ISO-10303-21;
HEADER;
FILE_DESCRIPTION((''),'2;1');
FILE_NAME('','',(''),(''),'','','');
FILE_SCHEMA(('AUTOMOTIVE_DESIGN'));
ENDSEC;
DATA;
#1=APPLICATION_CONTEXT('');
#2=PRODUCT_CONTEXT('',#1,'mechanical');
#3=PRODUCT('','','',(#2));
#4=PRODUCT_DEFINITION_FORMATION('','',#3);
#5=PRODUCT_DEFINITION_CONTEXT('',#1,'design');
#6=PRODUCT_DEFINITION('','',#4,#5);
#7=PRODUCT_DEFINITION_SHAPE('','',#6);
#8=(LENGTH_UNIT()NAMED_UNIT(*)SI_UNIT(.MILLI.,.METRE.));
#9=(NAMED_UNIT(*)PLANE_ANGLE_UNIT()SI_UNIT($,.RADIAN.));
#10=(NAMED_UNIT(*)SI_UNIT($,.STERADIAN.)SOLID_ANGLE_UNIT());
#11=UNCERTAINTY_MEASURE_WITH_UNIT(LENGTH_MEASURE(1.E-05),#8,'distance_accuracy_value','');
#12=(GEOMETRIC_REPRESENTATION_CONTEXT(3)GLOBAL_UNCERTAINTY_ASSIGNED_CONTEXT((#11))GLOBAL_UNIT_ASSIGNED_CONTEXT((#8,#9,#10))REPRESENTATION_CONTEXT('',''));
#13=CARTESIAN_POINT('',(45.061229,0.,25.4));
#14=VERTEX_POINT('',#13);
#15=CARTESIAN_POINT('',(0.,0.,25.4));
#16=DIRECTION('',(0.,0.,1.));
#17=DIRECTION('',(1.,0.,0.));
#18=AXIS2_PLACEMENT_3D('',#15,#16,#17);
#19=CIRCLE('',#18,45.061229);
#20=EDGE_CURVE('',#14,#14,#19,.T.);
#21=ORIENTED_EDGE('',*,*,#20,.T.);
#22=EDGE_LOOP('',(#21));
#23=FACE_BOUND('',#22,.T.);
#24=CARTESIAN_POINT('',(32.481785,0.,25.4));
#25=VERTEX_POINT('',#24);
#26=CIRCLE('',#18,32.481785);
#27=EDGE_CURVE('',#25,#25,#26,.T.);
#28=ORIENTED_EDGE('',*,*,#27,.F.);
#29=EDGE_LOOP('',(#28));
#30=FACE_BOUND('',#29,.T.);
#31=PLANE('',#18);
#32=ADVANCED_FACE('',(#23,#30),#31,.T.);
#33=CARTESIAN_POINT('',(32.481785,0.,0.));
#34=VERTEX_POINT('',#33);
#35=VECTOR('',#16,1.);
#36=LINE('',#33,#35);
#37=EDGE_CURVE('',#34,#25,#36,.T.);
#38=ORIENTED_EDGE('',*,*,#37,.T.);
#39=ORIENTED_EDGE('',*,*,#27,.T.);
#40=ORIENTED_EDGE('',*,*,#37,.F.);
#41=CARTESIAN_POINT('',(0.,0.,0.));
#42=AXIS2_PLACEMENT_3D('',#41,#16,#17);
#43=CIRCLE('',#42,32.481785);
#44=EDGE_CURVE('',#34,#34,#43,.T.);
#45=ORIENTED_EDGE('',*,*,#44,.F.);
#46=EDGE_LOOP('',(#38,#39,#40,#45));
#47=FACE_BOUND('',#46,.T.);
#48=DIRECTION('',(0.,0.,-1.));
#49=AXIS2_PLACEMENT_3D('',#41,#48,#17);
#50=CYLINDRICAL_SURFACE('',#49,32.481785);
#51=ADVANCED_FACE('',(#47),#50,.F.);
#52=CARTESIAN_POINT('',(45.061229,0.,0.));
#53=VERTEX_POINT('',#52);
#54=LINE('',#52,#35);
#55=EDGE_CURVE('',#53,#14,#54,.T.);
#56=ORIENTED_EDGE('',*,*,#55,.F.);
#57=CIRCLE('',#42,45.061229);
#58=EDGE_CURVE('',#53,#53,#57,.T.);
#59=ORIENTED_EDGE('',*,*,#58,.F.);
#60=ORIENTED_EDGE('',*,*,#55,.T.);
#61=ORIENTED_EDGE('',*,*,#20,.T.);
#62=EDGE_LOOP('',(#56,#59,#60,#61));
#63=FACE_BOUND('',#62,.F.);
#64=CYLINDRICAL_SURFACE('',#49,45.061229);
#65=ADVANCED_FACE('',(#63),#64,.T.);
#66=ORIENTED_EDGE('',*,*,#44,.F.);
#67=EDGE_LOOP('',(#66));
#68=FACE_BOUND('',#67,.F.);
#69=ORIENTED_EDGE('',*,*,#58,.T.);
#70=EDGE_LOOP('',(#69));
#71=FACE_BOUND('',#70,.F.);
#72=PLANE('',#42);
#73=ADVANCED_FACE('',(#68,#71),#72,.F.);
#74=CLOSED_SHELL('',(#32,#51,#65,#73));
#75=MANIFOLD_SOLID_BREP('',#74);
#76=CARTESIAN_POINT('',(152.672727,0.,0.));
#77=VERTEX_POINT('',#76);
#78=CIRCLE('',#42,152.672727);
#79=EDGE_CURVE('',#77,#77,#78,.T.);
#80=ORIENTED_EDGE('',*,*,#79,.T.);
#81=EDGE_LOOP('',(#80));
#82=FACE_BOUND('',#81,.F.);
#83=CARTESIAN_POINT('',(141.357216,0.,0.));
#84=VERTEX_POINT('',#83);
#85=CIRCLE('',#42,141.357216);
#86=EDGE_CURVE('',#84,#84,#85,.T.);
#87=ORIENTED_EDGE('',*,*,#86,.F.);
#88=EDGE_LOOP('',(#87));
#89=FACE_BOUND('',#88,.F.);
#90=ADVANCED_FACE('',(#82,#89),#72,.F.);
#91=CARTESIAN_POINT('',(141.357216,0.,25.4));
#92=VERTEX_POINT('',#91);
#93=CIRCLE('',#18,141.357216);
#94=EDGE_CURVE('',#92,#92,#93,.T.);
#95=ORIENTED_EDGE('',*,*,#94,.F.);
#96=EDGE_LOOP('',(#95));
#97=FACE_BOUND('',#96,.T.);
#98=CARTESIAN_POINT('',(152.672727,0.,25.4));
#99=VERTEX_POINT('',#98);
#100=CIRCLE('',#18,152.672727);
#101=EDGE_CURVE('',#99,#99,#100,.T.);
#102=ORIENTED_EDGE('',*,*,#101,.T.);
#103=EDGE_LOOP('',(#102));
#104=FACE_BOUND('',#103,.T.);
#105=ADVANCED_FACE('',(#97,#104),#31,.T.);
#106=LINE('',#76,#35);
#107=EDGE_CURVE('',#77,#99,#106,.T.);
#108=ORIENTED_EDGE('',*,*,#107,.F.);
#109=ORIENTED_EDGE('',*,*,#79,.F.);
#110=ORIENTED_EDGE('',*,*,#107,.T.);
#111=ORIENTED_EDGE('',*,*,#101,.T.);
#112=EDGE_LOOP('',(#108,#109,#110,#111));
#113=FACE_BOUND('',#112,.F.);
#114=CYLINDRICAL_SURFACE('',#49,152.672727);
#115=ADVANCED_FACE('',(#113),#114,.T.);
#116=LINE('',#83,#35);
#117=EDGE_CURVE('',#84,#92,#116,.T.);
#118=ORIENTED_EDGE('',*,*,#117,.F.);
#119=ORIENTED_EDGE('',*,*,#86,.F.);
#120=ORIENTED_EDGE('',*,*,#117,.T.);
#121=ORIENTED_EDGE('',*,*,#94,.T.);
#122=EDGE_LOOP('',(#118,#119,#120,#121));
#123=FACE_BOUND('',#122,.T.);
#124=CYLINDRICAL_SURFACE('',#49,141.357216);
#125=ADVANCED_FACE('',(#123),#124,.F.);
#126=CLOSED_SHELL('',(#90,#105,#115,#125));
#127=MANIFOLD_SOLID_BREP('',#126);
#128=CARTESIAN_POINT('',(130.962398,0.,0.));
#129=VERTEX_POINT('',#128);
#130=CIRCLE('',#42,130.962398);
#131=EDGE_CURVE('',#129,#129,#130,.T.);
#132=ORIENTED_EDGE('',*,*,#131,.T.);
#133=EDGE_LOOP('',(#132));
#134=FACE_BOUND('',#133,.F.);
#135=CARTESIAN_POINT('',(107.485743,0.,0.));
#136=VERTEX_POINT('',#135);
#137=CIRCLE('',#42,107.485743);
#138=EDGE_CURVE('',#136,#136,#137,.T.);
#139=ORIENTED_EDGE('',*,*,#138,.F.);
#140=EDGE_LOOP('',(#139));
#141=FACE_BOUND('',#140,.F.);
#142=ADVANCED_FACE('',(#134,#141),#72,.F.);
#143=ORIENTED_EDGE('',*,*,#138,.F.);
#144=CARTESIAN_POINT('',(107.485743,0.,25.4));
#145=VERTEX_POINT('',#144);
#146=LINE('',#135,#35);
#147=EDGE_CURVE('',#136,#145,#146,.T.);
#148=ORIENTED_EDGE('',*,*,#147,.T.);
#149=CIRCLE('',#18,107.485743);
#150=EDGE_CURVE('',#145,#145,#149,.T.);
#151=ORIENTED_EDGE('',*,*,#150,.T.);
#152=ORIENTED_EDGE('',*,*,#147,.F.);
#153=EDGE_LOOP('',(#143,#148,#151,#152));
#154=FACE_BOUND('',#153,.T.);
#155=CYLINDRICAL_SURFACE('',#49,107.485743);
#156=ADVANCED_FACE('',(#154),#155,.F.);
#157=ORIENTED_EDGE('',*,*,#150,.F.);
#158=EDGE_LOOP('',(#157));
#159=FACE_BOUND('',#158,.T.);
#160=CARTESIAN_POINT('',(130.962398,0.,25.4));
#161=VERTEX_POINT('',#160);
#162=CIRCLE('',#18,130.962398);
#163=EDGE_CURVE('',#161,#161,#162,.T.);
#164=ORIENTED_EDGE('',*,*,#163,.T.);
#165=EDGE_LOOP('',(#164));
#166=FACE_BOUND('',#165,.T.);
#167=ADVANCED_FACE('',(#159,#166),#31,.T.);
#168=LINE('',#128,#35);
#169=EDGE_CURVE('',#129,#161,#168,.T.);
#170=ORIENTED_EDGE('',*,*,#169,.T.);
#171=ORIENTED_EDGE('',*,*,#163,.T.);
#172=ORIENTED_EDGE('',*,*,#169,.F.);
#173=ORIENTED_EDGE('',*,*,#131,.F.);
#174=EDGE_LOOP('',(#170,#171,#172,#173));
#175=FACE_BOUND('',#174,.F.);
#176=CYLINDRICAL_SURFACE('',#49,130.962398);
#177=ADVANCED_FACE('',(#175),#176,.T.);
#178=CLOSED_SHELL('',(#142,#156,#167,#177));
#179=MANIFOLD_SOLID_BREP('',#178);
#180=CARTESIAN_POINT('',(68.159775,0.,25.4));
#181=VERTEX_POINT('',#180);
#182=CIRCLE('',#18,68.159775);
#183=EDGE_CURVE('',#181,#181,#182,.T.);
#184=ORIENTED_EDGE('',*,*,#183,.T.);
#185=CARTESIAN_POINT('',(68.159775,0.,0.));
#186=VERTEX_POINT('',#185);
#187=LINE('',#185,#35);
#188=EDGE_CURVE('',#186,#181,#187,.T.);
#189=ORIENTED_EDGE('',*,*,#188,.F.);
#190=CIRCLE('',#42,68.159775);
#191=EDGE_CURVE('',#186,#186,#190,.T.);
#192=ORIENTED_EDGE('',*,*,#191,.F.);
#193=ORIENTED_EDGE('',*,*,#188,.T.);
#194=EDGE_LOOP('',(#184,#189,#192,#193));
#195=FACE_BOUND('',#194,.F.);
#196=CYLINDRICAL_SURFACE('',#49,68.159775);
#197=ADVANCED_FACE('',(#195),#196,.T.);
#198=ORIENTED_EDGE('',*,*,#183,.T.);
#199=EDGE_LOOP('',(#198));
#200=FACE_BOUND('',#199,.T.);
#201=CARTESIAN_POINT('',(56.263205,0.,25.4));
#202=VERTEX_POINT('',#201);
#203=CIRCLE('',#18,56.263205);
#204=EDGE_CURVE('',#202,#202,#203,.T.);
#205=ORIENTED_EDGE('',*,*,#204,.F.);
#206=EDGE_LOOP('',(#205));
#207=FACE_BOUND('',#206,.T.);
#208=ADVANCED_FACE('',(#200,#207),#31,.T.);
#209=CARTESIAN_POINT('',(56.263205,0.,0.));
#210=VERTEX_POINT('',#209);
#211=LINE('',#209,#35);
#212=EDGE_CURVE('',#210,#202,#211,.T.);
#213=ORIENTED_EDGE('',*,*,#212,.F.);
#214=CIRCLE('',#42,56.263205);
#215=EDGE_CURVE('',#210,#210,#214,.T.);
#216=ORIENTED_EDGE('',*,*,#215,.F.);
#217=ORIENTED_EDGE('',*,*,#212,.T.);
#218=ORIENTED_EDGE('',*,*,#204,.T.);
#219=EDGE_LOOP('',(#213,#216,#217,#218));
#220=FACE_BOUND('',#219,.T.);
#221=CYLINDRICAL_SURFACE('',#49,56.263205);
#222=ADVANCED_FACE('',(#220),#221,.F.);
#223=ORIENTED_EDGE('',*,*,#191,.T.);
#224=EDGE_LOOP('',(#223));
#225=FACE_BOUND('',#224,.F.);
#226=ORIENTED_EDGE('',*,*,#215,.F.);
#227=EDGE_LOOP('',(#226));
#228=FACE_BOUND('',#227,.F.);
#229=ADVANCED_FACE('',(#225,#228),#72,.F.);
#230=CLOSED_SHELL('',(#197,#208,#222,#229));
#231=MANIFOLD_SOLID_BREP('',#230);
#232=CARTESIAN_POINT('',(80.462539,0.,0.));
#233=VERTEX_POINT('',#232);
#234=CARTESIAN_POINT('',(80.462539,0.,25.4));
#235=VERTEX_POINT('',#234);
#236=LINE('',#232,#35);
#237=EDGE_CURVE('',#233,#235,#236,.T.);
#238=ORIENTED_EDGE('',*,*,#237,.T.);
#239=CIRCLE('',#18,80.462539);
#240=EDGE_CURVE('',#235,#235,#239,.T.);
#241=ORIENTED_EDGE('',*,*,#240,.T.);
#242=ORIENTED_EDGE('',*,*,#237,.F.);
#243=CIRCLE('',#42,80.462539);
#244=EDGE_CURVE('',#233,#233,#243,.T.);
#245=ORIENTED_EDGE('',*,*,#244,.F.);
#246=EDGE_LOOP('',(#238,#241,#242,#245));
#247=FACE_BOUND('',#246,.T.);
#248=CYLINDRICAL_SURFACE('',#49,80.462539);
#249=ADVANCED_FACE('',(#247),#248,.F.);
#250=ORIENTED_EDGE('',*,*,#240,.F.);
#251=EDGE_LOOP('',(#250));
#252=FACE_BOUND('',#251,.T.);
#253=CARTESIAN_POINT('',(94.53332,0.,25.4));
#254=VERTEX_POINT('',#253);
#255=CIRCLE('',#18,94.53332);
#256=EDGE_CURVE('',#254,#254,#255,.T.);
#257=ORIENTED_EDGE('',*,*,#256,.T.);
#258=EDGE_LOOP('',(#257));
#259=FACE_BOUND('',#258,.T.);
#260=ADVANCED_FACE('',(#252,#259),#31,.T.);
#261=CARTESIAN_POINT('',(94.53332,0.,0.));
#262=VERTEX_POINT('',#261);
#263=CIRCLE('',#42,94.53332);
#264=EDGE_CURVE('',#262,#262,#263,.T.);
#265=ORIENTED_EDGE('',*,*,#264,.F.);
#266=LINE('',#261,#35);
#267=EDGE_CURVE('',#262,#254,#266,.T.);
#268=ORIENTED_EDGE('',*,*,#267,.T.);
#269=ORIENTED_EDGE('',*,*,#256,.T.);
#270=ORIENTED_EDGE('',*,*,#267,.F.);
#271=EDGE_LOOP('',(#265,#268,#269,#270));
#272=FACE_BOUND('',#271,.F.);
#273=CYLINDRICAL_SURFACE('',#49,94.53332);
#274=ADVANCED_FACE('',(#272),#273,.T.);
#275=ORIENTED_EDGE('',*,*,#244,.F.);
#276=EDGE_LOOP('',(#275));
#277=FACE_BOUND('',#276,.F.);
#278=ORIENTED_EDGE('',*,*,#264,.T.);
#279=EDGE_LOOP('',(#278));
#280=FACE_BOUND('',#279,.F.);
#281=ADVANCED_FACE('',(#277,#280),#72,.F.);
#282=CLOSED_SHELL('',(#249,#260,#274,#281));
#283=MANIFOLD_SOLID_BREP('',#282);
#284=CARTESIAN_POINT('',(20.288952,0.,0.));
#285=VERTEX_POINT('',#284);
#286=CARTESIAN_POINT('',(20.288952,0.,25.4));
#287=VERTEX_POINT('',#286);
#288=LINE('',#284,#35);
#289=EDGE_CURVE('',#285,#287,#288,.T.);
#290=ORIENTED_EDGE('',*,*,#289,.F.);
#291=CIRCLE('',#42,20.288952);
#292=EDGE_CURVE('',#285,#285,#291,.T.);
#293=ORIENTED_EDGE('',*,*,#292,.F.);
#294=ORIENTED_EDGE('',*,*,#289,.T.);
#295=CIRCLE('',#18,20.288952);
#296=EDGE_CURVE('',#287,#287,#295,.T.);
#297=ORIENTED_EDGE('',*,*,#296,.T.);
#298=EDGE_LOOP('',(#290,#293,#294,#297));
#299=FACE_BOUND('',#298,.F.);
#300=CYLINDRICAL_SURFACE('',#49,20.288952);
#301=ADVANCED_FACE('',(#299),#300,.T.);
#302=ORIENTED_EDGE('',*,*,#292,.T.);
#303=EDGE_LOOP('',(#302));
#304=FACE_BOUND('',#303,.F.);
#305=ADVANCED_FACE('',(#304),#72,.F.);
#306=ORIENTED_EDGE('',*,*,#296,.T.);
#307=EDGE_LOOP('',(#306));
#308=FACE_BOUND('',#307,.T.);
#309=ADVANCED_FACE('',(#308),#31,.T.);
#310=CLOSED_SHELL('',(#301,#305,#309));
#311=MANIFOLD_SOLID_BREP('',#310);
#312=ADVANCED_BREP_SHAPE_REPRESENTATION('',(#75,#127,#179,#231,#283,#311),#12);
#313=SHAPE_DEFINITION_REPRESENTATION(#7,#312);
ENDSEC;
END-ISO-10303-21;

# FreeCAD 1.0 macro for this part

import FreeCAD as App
import Part
import Sketcher
Q = App.Units.Quantity

doc = App.newDocument("Part")
body = doc.addObject("PartDesign::Body", "Body")

sketch1 = body.newObject("Sketcher::SketchObject", "Sketch")
sketch1.AttachmentSupport = (doc.getObject("XY_Plane"), [""])
sketch1.MapMode = "FlatFace"
sketch1.addGeometry(Part.Circle(App.Vector(0, 0, 0), App.Vector(0, 0, 1), 153), False)
sketch1.addGeometry(Part.Circle(App.Vector(0, 0, 0), App.Vector(0, 0, 1), 141), False)
sketch1.addConstraint(Sketcher.Constraint("Coincident", 0, 3, -1, 1))
sketch1.addConstraint(Sketcher.Constraint("Coincident", 1, 3, -1, 1))
sketch1.addConstraint(Sketcher.Constraint("Diameter", 1, Q("282.714432 mm")))
sketch1.addConstraint(Sketcher.Constraint("Diameter", 0, Q("305.345453 mm")))
pad1 = body.newObject("PartDesign::Pad", "Pad")
pad1.Profile = sketch1
pad1.Length = Q("1 in")
body2 = doc.addObject("PartDesign::Body", "Body001")

sketch2 = body2.newObject("Sketcher::SketchObject", "Sketch001")
sketch2.AttachmentSupport = (doc.getObject("XY_Plane001"), [""])
sketch2.MapMode = "FlatFace"
sketch2.addGeometry(Part.Circle(App.Vector(0, 0, 0), App.Vector(0, 0, 1), 20), False)
sketch2.addConstraint(Sketcher.Constraint("Coincident", 0, 3, -1, 1))
sketch2.addConstraint(Sketcher.Constraint("Diameter", 0, Q("40.577905 mm")))
pad2 = body2.newObject("PartDesign::Pad", "Pad001")
pad2.Profile = sketch2
pad2.Length = Q("1 in")
body3 = doc.addObject("PartDesign::Body", "Body002")

sketch3 = body3.newObject("Sketcher::SketchObject", "Sketch002")
sketch3.AttachmentSupport = (doc.getObject("XY_Plane002"), [""])
sketch3.MapMode = "FlatFace"
sketch3.addGeometry(Part.Circle(App.Vector(0, 0, 0), App.Vector(0, 0, 1), 45), False)
sketch3.addGeometry(Part.Circle(App.Vector(0, 0, 0), App.Vector(0, 0, 1), 32), False)
sketch3.addConstraint(Sketcher.Constraint("Coincident", 0, 3, -1, 1))
sketch3.addConstraint(Sketcher.Constraint("Coincident", 1, 3, -1, 1))
sketch3.addConstraint(Sketcher.Constraint("Diameter", 0, Q("90.122458 mm")))
sketch3.addConstraint(Sketcher.Constraint("Diameter", 1, Q("64.963569 mm")))
pad3 = body3.newObject("PartDesign::Pad", "Pad002")
pad3.Profile = sketch3
pad3.Length = Q("1 in")
body4 = doc.addObject("PartDesign::Body", "Body003")

sketch4 = body4.newObject("Sketcher::SketchObject", "Sketch003")
sketch4.AttachmentSupport = (doc.getObject("XY_Plane003"), [""])
sketch4.MapMode = "FlatFace"
sketch4.addGeometry(Part.Circle(App.Vector(0, 0, 0), App.Vector(0, 0, 1), 68), False)
sketch4.addGeometry(Part.Circle(App.Vector(0, 0, 0), App.Vector(0, 0, 1), 56), False)
sketch4.addConstraint(Sketcher.Constraint("Coincident", 0, 3, -1, 1))
sketch4.addConstraint(Sketcher.Constraint("Coincident", 1, 3, -1, 1))
sketch4.addConstraint(Sketcher.Constraint("Diameter", 0, Q("136.319549 mm")))
sketch4.addConstraint(Sketcher.Constraint("Diameter", 1, Q("112.52641 mm")))
pad4 = body4.newObject("PartDesign::Pad", "Pad003")
pad4.Profile = sketch4
pad4.Length = Q("1 in")
body5 = doc.addObject("PartDesign::Body", "Body004")

sketch5 = body5.newObject("Sketcher::SketchObject", "Sketch004")
sketch5.AttachmentSupport = (doc.getObject("XY_Plane004"), [""])
sketch5.MapMode = "FlatFace"
sketch5.addGeometry(Part.Circle(App.Vector(0, 0, 0), App.Vector(0, 0, 1), 95), False)
sketch5.addGeometry(Part.Circle(App.Vector(0, 0, 0), App.Vector(0, 0, 1), 80), False)
sketch5.addConstraint(Sketcher.Constraint("Coincident", 0, 3, -1, 1))
sketch5.addConstraint(Sketcher.Constraint("Coincident", 1, 3, -1, 1))
sketch5.addConstraint(Sketcher.Constraint("Diameter", 0, Q("189.066641 mm")))
sketch5.addConstraint(Sketcher.Constraint("Diameter", 1, Q("160.925079 mm")))
pad5 = body5.newObject("PartDesign::Pad", "Pad004")
pad5.Profile = sketch5
pad5.Length = Q("1 in")
body6 = doc.addObject("PartDesign::Body", "Body005")

sketch6 = body6.newObject("Sketcher::SketchObject", "Sketch005")
sketch6.AttachmentSupport = (doc.getObject("XY_Plane005"), [""])
sketch6.MapMode = "FlatFace"
sketch6.addGeometry(Part.Circle(App.Vector(0, 0, 0), App.Vector(0, 0, 1), 131), False)
sketch6.addGeometry(Part.Circle(App.Vector(0, 0, 0), App.Vector(0, 0, 1), 107), False)
sketch6.addConstraint(Sketcher.Constraint("Coincident", 0, 3, -1, 1))
sketch6.addConstraint(Sketcher.Constraint("Coincident", 1, 3, -1, 1))
sketch6.addConstraint(Sketcher.Constraint("Diameter", 0, Q("10.3119998 in")))
sketch6.addConstraint(Sketcher.Constraint("Diameter", 1, Q("214.971486 mm")))
pad6 = body6.newObject("PartDesign::Pad", "Pad005")
pad6.Profile = sketch6
pad6.Length = Q("1 in")

doc.recompute()
